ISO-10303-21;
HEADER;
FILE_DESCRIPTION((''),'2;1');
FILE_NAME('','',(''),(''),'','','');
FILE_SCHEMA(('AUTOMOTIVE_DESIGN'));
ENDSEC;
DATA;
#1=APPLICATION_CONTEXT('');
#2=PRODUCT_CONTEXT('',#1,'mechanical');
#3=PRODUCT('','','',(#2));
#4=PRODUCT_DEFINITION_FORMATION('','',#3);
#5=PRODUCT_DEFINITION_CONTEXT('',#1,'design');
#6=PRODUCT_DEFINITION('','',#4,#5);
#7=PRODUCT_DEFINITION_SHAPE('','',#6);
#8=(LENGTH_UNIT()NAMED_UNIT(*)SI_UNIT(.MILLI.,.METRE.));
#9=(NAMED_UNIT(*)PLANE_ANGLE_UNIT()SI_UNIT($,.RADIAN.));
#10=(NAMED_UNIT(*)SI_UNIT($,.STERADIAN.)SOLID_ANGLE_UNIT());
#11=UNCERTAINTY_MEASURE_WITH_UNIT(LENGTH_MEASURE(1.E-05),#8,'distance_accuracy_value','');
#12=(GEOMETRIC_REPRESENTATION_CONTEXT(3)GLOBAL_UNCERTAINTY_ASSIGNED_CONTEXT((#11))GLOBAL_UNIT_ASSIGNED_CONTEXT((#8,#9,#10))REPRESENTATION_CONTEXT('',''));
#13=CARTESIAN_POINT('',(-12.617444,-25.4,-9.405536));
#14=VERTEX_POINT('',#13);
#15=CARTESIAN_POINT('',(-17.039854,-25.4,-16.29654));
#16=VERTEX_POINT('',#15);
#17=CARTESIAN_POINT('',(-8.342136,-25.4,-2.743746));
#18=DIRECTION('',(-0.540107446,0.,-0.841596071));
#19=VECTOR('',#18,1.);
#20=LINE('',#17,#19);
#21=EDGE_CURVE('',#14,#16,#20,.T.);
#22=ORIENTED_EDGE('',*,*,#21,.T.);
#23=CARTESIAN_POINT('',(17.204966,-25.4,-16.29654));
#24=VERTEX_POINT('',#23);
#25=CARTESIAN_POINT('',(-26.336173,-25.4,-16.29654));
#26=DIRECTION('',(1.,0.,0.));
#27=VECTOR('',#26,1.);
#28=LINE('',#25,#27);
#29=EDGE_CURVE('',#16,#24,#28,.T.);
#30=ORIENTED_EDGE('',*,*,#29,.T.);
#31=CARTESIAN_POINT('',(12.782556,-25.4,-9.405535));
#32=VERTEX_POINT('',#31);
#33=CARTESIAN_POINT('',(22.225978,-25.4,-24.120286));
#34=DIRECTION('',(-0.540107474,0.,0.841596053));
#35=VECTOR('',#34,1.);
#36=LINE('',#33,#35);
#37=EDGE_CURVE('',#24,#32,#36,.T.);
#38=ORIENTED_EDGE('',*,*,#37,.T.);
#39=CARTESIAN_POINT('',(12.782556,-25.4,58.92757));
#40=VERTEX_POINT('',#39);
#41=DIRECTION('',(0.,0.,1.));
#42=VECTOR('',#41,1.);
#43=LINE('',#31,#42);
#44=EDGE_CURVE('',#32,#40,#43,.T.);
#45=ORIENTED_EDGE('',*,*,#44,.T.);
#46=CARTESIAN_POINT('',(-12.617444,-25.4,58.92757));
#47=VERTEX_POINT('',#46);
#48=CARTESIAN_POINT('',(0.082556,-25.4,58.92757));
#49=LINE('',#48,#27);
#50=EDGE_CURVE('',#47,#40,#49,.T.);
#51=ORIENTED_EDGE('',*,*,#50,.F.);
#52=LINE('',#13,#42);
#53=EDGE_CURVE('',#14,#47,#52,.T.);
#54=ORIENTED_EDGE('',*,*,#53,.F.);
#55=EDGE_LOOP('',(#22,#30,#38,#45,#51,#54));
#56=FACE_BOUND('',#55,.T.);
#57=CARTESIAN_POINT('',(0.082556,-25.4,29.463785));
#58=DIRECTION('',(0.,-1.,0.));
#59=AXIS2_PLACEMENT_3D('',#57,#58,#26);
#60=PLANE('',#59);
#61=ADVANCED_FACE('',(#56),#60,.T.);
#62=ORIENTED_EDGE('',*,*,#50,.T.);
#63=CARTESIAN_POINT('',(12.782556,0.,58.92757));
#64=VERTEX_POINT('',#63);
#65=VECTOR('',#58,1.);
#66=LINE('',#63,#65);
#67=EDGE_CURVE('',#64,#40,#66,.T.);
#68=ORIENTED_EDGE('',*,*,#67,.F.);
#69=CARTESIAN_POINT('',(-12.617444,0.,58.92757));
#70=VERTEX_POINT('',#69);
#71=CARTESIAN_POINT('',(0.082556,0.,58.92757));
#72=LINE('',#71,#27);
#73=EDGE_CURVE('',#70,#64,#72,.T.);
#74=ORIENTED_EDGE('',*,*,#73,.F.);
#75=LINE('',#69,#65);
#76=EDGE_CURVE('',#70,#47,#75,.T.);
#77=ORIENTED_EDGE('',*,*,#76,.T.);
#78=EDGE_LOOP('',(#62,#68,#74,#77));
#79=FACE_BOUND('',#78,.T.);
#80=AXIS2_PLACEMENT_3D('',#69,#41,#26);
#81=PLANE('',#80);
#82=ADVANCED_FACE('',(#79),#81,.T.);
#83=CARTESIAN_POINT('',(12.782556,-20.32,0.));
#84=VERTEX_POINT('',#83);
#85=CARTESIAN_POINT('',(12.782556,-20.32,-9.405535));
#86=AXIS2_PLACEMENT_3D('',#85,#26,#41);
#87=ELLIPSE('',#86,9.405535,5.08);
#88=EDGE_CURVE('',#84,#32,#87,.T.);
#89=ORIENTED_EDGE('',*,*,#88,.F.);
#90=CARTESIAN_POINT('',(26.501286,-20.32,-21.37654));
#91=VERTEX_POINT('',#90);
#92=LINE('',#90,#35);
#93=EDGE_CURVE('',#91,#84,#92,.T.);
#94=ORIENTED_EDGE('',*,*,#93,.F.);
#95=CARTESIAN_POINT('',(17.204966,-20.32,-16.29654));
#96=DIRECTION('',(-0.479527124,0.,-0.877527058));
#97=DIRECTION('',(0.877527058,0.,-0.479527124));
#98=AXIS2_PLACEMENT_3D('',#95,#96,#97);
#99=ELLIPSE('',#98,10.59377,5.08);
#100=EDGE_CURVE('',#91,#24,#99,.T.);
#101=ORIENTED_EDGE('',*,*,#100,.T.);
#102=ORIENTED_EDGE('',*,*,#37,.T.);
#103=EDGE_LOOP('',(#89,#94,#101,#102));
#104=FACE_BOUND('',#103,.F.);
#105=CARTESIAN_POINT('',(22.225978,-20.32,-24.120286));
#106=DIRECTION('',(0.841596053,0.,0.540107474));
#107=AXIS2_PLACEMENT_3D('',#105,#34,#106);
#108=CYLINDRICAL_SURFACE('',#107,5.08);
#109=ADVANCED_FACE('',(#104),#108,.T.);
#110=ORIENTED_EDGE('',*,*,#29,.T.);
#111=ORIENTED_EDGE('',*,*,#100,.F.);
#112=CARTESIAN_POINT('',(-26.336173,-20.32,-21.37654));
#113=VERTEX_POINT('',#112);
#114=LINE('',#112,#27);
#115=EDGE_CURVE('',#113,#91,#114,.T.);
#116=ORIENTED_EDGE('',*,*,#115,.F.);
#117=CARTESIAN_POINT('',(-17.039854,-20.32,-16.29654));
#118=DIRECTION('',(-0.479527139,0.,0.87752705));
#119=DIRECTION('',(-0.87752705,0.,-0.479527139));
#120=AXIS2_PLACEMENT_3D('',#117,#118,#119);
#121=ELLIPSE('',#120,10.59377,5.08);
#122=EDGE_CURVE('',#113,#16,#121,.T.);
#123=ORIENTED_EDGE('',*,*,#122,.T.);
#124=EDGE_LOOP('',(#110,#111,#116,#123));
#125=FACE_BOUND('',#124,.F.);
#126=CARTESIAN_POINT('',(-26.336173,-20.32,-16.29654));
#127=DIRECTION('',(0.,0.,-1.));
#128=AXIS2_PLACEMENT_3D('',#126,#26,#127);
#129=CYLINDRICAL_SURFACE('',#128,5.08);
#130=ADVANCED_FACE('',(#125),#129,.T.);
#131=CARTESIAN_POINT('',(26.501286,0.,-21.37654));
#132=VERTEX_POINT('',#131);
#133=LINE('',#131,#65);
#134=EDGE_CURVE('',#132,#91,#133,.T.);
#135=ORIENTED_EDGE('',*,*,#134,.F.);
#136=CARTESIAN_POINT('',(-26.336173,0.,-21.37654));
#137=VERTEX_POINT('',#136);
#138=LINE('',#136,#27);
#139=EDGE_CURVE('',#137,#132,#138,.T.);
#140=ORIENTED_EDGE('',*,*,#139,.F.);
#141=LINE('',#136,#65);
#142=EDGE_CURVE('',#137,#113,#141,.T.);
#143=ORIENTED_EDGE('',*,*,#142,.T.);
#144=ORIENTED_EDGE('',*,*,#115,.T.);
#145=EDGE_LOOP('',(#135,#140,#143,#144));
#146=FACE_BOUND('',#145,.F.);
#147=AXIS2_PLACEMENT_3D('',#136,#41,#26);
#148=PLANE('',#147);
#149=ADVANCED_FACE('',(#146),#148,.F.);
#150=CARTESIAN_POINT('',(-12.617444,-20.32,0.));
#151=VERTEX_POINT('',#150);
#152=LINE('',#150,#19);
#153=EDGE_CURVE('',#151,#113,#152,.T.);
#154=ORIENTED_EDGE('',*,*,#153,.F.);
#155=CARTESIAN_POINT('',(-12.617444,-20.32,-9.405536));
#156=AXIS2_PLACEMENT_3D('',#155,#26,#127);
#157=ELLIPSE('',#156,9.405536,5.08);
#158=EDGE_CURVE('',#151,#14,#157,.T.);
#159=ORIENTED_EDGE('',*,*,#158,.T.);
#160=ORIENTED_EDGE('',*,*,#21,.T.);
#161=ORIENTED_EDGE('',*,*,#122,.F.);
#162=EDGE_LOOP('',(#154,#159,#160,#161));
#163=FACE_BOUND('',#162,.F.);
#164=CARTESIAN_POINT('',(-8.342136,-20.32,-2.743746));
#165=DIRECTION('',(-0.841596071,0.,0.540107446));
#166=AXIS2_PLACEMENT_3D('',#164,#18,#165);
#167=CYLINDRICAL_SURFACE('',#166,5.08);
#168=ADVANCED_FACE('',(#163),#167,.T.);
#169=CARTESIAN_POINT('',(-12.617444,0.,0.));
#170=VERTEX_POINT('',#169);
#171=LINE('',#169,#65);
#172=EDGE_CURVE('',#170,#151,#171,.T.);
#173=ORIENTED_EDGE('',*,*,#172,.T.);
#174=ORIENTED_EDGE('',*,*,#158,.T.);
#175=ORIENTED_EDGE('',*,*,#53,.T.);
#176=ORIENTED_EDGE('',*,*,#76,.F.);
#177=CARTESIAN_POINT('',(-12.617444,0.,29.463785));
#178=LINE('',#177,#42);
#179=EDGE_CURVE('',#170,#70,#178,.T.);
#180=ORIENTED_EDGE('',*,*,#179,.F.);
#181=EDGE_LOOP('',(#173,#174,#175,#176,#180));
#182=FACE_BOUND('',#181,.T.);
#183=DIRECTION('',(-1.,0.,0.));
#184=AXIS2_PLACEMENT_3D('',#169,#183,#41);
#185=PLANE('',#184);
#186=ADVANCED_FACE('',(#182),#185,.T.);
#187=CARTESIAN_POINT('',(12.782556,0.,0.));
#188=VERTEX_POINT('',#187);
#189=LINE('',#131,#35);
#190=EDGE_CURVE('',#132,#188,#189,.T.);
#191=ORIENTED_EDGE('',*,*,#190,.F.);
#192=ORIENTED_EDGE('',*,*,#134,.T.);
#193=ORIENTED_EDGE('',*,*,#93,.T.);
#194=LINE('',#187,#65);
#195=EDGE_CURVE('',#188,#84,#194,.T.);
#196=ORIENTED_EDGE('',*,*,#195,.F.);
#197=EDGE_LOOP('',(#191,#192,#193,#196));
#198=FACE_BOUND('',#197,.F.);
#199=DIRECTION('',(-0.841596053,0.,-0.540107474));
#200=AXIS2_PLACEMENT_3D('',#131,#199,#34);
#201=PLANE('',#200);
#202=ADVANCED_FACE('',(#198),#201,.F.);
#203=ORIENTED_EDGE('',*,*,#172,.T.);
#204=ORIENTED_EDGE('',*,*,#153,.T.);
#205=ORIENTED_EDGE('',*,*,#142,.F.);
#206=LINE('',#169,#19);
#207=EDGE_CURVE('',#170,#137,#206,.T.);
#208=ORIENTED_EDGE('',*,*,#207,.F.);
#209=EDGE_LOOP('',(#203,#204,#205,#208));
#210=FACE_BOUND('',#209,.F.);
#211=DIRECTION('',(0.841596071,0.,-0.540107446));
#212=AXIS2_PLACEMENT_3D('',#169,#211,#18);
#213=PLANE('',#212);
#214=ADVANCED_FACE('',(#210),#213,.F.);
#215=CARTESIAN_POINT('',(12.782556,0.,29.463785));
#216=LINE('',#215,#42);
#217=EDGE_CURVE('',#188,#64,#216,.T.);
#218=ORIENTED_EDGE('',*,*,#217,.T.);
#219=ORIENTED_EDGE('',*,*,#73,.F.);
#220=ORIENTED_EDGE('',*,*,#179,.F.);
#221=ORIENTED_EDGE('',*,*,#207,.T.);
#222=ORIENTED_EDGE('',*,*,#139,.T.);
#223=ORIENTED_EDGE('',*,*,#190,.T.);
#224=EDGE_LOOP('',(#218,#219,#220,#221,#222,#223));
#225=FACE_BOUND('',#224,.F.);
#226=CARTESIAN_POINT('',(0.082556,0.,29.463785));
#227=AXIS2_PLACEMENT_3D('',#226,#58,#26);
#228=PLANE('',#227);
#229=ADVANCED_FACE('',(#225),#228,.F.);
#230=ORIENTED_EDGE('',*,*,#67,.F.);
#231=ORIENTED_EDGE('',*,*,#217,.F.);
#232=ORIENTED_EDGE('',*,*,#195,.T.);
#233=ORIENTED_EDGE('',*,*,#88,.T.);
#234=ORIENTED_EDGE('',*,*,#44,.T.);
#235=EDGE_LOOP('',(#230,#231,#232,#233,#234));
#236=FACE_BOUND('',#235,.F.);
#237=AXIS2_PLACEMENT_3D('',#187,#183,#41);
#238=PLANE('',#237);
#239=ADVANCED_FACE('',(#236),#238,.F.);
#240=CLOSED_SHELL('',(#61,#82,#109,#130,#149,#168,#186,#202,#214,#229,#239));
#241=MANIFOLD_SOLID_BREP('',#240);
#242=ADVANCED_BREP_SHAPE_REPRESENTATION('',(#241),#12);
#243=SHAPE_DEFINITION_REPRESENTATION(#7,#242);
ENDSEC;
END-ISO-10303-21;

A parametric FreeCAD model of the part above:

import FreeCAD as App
import Part
import Sketcher
Q = App.Units.Quantity


def edges_at(feature, points):
    """Names of the edges that pass closest to the given points."""
    edges = feature.Shape.Edges
    near = lambda p: min(range(len(edges)), key=lambda i: edges[i].distToShape(Part.Vertex(*p))[0])
    return sorted({f"Edge{near(p) + 1}" for p in points})

doc = App.newDocument("Part")
body = doc.addObject("PartDesign::Body", "Body")

# Sketch on XZ plane
sketch1 = body.newObject("Sketcher::SketchObject", "Sketch")
sketch1.AttachmentSupport = (doc.getObject("XZ_Plane"), [""])
sketch1.MapMode = "FlatFace"
sketch1.addGeometry([
    Part.LineSegment(App.Vector(-13, 59, 0), App.Vector(-13, 0, 0)),  # 0
    Part.LineSegment(App.Vector(-13, 0, 0), App.Vector(-26, -21, 0)),  # 1
    Part.LineSegment(App.Vector(-26, -21, 0), App.Vector(27, -21, 0)),  # 2
    Part.LineSegment(App.Vector(27, -21, 0), App.Vector(13, 0, 0)),  # 3
    Part.LineSegment(App.Vector(13, 0, 0), App.Vector(13, 59, 0)),  # 4
    Part.LineSegment(App.Vector(13, 59, 0), App.Vector(-13, 59, 0)),  # 5
], False)
sketch1.addConstraint([
    Sketcher.Constraint("Coincident", 0, 2, 1, 1),
    Sketcher.Constraint("Coincident", 1, 2, 2, 1),
    Sketcher.Constraint("Coincident", 2, 2, 3, 1),
    Sketcher.Constraint("Coincident", 3, 2, 4, 1),
    Sketcher.Constraint("Coincident", 4, 2, 5, 1),
    Sketcher.Constraint("Coincident", 5, 2, 0, 1),
    Sketcher.Constraint("Vertical", 0),
    Sketcher.Constraint("Horizontal", 2),
    Sketcher.Constraint("Vertical", 4),
    Sketcher.Constraint("Horizontal", 5),
    Sketcher.Constraint("PointOnObject", 0, 2, -1),
    Sketcher.Constraint("PointOnObject", 3, 2, -1),
    Sketcher.Constraint("Equal", 1, 3),
    Sketcher.Constraint("DistanceX", 5, 2, 5, 1, Q("1 in")),
    Sketcher.Constraint("Distance", 1, Q("1 in")),
    Sketcher.Constraint("DistanceX", 2, 1, 2, 2, 52.837459),
    Sketcher.Constraint("DistanceY", 0, 2, 0, 1, 58.92757),
    Sketcher.Constraint("DistanceX", 0, 2, -1, 1, 12.617444),
])
pad1 = body.newObject("PartDesign::Pad", "Pad")
pad1.Profile = sketch1
pad1.Length = Q("1 in")
doc.recompute()

fillet = body.newObject("PartDesign::Fillet", "Fillet")
fillet.Base = (pad1, edges_at(pad1, [(-19.477, -25.4, -10.688), (0.083, -25.4, -21.377), (19.642, -25.4, -10.688)]))
fillet.Radius = Q("0.2 in")

doc.recompute()
